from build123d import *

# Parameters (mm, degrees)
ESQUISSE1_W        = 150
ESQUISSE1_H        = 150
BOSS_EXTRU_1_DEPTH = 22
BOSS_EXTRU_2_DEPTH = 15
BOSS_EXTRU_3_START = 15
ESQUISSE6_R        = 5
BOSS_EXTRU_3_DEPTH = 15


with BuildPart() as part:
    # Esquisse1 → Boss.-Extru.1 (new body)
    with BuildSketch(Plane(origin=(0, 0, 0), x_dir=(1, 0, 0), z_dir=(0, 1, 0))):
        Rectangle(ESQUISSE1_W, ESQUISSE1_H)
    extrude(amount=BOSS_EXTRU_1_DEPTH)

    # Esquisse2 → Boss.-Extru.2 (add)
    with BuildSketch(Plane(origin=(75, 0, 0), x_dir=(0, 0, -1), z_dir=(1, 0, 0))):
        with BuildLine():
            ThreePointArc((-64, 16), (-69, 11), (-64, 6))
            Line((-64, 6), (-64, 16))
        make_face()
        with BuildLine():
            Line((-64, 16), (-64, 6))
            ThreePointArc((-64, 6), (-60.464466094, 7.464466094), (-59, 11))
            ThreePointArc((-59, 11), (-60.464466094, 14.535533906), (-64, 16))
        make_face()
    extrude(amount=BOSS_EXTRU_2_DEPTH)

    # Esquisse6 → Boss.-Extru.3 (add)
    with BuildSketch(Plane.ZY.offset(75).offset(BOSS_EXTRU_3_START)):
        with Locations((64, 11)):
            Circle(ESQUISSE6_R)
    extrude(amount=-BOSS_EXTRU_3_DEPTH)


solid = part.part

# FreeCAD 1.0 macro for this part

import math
import FreeCAD as App
import Part
import Sketcher

doc = App.newDocument("Part")
body = doc.addObject("PartDesign::Body", "Body")

# Sketch on XZ plane
sketch1 = body.newObject("Sketcher::SketchObject", "Sketch")
sketch1.AttachmentSupport = (doc.getObject("XZ_Plane"), [""])
sketch1.MapMode = "FlatFace"
sketch1.addGeometry([
    Part.LineSegment(App.Vector(-75, -75, 0), App.Vector(-75, 75, 0)),
    Part.LineSegment(App.Vector(-75, 75, 0), App.Vector(75, 75, 0)),
    Part.LineSegment(App.Vector(75, 75, 0), App.Vector(75, -75, 0)),
    Part.LineSegment(App.Vector(75, -75, 0), App.Vector(-75, -75, 0)),
], False)
sketch1.addConstraint([
    Sketcher.Constraint("Coincident", 0, 2, 1, 1),
    Sketcher.Constraint("Coincident", 1, 2, 2, 1),
    Sketcher.Constraint("Coincident", 2, 2, 3, 1),
    Sketcher.Constraint("Coincident", 3, 2, 0, 1),
    Sketcher.Constraint("Vertical", 0),
    Sketcher.Constraint("Horizontal", 1),
    Sketcher.Constraint("Vertical", 2),
    Sketcher.Constraint("Horizontal", 3),
    Sketcher.Constraint("Symmetric", 0, 2, 2, 2, -1, 1),
    Sketcher.Constraint("Equal", 3, 0),
    Sketcher.Constraint("DistanceX", 1, 1, 1, 2, 150.0),
])
pad1 = body.newObject("PartDesign::Pad", "Pad")
pad1.Profile = sketch1
pad1.Length = 22
pad1.Reversed = True

# Sketch on YZ plane
sketch2 = body.newObject("Sketcher::SketchObject", "Sketch001")
sketch2.AttachmentSupport = (doc.getObject("YZ_Plane"), [""])
sketch2.MapMode = "FlatFace"
sketch2.AttachmentOffset = App.Placement(App.Vector(0, 0, 75), App.Rotation())
sketch2.addGeometry([
    Part.ArcOfCircle(Part.Circle(App.Vector(11, 64, 0), App.Vector(0, 0, 1), 5), math.radians(0), math.radians(180)),
    Part.ArcOfCircle(Part.Circle(App.Vector(11, 64, 0), App.Vector(0, 0, 1), 5), math.radians(180), math.radians(270)),
    Part.ArcOfCircle(Part.Circle(App.Vector(11, 64, 0), App.Vector(0, 0, 1), 5), math.radians(-90), math.radians(0)),
], False)
sketch2.addConstraint([
    Sketcher.Constraint("Tangent", 0, 2, 1, 1),
    Sketcher.Constraint("Tangent", 1, 2, 2, 1),
    Sketcher.Constraint("Tangent", 2, 2, 0, 1),
    Sketcher.Constraint("Horizontal", 2, 3, 0, 2),
    Sketcher.Constraint("Horizontal", 0, 2, 2, 2),
    Sketcher.Constraint("Vertical", 2, 3, 1, 2),
    Sketcher.Constraint("Radius", 0, 5.0),
    Sketcher.Constraint("DistanceX", -1, 1, 0, 3, 11.0),
    Sketcher.Constraint("DistanceY", -1, 1, 0, 3, 64.0),
])
pad2 = body.newObject("PartDesign::Pad", "Pad001")
pad2.Profile = sketch2
pad2.Length = 15

# Sketch on YZ plane
sketch3 = body.newObject("Sketcher::SketchObject", "Sketch002")
sketch3.AttachmentSupport = (doc.getObject("YZ_Plane"), [""])
sketch3.MapMode = "FlatFace"
sketch3.AttachmentOffset = App.Placement(App.Vector(0, 0, -90), App.Rotation())
sketch3.addGeometry(Part.Circle(App.Vector(11, 64, 0), App.Vector(0, 0, 1), 5), False)
sketch3.addConstraint([
    Sketcher.Constraint("Diameter", 0, 10.0),
    Sketcher.Constraint("DistanceX", -1, 1, 0, 3, 11.0),
    Sketcher.Constraint("DistanceY", -1, 1, 0, 3, 64.0),
])
pad3 = body.newObject("PartDesign::Pad", "Pad002")
pad3.Profile = sketch3
pad3.Length = 15

doc.recompute()
